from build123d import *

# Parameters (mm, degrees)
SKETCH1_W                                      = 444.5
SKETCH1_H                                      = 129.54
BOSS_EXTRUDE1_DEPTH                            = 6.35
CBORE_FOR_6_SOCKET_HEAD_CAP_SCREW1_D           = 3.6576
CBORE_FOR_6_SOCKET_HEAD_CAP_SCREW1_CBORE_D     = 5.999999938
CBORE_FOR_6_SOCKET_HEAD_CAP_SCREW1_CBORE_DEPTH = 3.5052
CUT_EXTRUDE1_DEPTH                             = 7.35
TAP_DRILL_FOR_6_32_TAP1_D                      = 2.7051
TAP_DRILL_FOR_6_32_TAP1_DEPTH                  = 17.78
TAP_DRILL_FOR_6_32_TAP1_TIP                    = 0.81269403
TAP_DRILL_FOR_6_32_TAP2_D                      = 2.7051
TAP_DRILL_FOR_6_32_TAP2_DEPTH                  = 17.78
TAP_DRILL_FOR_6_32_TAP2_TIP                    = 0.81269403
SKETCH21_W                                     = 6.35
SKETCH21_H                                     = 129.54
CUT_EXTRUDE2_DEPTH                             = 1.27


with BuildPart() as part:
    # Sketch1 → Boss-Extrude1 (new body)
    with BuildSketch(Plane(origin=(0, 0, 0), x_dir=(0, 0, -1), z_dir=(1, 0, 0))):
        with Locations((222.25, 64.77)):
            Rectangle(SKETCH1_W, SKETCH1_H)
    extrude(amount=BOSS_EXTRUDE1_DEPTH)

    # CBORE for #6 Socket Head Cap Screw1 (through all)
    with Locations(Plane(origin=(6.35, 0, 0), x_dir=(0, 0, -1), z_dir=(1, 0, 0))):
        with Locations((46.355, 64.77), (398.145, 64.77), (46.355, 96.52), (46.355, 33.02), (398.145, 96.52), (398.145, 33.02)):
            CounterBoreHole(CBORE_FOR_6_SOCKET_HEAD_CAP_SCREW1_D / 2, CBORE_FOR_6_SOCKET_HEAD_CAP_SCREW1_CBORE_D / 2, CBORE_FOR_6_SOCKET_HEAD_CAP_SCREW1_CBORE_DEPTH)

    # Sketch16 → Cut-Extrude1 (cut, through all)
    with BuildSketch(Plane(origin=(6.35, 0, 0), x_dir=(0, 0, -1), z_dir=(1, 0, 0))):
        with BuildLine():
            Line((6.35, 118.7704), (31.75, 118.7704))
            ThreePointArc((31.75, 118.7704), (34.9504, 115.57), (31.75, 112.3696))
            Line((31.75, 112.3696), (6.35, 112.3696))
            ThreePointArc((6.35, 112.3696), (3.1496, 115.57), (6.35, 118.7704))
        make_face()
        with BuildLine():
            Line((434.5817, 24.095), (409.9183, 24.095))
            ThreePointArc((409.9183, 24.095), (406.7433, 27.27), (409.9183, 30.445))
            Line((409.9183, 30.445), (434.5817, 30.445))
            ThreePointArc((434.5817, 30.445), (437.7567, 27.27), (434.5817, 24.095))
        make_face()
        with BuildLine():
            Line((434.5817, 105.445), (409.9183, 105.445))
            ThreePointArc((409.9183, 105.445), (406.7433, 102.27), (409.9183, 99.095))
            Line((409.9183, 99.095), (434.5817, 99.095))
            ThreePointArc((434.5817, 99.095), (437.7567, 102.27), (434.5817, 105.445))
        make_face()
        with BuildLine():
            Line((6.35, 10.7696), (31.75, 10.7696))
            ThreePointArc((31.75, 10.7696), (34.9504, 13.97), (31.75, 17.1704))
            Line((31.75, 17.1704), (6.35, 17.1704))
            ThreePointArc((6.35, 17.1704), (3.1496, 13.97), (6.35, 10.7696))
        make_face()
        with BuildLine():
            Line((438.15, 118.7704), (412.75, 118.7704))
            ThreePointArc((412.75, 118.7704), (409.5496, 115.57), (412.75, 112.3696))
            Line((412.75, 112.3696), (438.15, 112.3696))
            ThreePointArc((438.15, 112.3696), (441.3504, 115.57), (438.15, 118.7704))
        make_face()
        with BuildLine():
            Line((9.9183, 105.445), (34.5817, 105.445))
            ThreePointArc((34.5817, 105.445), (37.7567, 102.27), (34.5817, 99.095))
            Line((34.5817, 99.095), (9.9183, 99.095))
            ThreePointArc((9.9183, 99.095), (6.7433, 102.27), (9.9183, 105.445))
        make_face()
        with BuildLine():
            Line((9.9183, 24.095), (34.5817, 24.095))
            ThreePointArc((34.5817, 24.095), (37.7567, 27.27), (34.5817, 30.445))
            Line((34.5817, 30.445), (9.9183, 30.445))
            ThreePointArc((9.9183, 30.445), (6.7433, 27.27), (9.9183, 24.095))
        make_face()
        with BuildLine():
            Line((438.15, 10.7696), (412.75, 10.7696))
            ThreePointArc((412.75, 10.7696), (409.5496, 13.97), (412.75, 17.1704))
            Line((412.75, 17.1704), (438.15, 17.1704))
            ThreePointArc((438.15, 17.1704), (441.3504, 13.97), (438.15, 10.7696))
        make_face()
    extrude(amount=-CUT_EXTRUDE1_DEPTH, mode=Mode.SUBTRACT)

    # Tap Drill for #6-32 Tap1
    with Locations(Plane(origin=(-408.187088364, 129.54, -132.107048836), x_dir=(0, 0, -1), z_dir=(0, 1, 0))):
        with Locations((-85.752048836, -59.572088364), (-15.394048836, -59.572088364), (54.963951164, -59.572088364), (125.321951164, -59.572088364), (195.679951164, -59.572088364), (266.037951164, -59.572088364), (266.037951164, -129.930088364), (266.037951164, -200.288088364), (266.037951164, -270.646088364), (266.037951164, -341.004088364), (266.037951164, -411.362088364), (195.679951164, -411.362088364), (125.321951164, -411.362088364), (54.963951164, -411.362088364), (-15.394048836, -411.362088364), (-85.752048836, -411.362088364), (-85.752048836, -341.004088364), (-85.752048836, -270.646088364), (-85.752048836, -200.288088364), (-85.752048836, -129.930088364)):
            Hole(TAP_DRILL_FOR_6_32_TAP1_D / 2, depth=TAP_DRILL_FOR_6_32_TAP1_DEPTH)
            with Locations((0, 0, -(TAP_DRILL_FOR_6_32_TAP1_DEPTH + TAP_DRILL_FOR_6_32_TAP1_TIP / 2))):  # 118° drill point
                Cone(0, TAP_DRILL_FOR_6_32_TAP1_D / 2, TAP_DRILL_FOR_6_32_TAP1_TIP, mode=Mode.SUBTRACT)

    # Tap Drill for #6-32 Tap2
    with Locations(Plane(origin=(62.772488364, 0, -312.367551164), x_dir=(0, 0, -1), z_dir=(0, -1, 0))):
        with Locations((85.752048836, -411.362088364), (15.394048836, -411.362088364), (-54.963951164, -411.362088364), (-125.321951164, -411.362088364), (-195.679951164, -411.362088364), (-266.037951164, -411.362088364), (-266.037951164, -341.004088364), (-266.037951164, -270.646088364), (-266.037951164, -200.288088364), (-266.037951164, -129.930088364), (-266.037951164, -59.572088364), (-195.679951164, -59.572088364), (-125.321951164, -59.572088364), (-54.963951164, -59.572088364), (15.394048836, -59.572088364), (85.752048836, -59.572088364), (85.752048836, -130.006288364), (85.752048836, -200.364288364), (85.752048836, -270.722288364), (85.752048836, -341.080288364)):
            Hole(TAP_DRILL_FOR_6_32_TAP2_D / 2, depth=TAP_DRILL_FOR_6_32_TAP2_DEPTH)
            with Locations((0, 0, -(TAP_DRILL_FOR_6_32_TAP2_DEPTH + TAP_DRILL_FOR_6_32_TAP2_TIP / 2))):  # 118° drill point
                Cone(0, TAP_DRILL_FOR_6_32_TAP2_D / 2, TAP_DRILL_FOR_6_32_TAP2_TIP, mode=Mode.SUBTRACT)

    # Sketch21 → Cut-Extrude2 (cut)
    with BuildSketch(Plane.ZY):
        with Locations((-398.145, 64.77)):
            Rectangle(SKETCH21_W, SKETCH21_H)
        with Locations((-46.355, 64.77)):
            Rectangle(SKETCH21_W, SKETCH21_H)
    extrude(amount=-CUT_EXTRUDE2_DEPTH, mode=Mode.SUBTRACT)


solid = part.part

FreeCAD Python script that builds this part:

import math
import FreeCAD as App
import Part
import Sketcher
from FreeCAD import Vector
Q = App.Units.Quantity


def add_polygon(sketch, points):
    """Adds a closed chain of lines whose ends are joined by coincident constraints."""
    first, n = sketch.GeometryCount, len(points)
    for a, b in zip(points, points[1:] + points[:1]):
        sketch.addGeometry(Part.LineSegment(App.Vector(*a, 0), App.Vector(*b, 0)), False)
    for i in range(n):
        sketch.addConstraint(Sketcher.Constraint("Coincident", first + i, 2, first + (i + 1) % n, 1))

doc = App.newDocument("Part")
body = doc.addObject("PartDesign::Body", "Body")

sketch1 = body.newObject("Sketcher::SketchObject", "Sketch")
sketch1.AttachmentSupport = (doc.getObject("YZ_Plane"), [""])
sketch1.MapMode = "FlatFace"
add_polygon(sketch1, [(130, 0), (0, 0), (0, -444), (130, -444)])
sketch1.addConstraint(Sketcher.Constraint("Horizontal", 0))
sketch1.addConstraint(Sketcher.Constraint("Vertical", 1))
sketch1.addConstraint(Sketcher.Constraint("Horizontal", 2))
sketch1.addConstraint(Sketcher.Constraint("Vertical", 3))
sketch1.addConstraint(Sketcher.Constraint("Coincident", 0, 2, -1, 1))
sketch1.addConstraint(Sketcher.Constraint("DistanceX", 0, 2, 0, 1, Q("5.1 in")))
sketch1.addConstraint(Sketcher.Constraint("DistanceY", 1, 2, 1, 1, Q("17.5 in")))
pad1 = body.newObject("PartDesign::Pad", "Pad")
pad1.Profile = sketch1
pad1.Length = Q("0.25 in")

sketch2 = body.newObject("Sketcher::SketchObject", "Sketch001")
sketch2.AttachmentSupport = (doc.getObject("YZ_Plane"), [""])
sketch2.MapMode = "FlatFace"
sketch2.AttachmentOffset = App.Placement(Vector(0, 0, 0.25 * 25.4), App.Rotation())
sketch2.addGeometry(Part.Circle(Vector(64.8, -46.4, 0), Vector(0, 0, 1), 1.8), False)
sketch2.addGeometry(Part.Circle(Vector(64.8, -398.1, 0), Vector(0, 0, 1), 1.8), False)
sketch2.addGeometry(Part.Circle(Vector(96.5, -46.4, 0), Vector(0, 0, 1), 1.8), False)
sketch2.addGeometry(Part.Circle(Vector(33, -46.4, 0), Vector(0, 0, 1), 1.8), False)
sketch2.addGeometry(Part.Circle(Vector(96.5, -398.1, 0), Vector(0, 0, 1), 1.8), False)
sketch2.addGeometry(Part.Circle(Vector(33, -398.1, 0), Vector(0, 0, 1), 1.8), False)
sketch2.addConstraint(Sketcher.Constraint("Equal", 0, 1))
sketch2.addConstraint(Sketcher.Constraint("Equal", 1, 2))
sketch2.addConstraint(Sketcher.Constraint("Equal", 2, 3))
sketch2.addConstraint(Sketcher.Constraint("Equal", 3, 4))
sketch2.addConstraint(Sketcher.Constraint("Equal", 4, 5))
sketch2.addConstraint(Sketcher.Constraint("Horizontal", 0, 3, 2, 3))
sketch2.addConstraint(Sketcher.Constraint("Horizontal", 2, 3, 3, 3))
sketch2.addConstraint(Sketcher.Constraint("Horizontal", 1, 3, 4, 3))
sketch2.addConstraint(Sketcher.Constraint("Horizontal", 4, 3, 5, 3))
sketch2.addConstraint(Sketcher.Constraint("Vertical", 0, 3, 1, 3))
sketch2.addConstraint(Sketcher.Constraint("Vertical", 2, 3, 4, 3))
sketch2.addConstraint(Sketcher.Constraint("Vertical", 3, 3, 5, 3))
sketch2.addConstraint(Sketcher.Constraint("Diameter", 0, Q("0.144 in")))
sketch2.addConstraint(Sketcher.Constraint("DistanceX", -1, 1, 2, 3, Q("3.8 in")))
sketch2.addConstraint(Sketcher.Constraint("DistanceX", -1, 1, 3, 3, Q("1.3 in")))
sketch2.addConstraint(Sketcher.Constraint("DistanceX", -1, 1, 0, 3, Q("2.55 in")))
sketch2.addConstraint(Sketcher.Constraint("DistanceY", 1, 3, 0, 3, Q("13.85 in")))
sketch2.addConstraint(Sketcher.Constraint("DistanceY", 0, 3, -1, 1, Q("1.825 in")))
doc.recompute()
hole = body.newObject("PartDesign::Hole", "Hole")
hole.Profile = sketch2
hole.ThreadType = "None"
hole.Diameter = Q("0.144 in")
hole.DepthType = "ThroughAll"
hole.HoleCutType = "Counterbore"
hole.HoleCutDiameter = 6
hole.HoleCutDepth = Q("0.138 in")

sketch3 = body.newObject("Sketcher::SketchObject", "Sketch002")
sketch3.AttachmentSupport = (doc.getObject("YZ_Plane"), [""])
sketch3.MapMode = "FlatFace"
sketch3.AttachmentOffset = App.Placement(Vector(0, 0, 0.25 * 25.4), App.Rotation())
sketch3.addGeometry(Part.LineSegment(Vector(118.8, -31.8, 0), Vector(118.8, -6.3, 0)), False)
sketch3.addGeometry(Part.ArcOfCircle(Part.Circle(Vector(115.6, -6.3, 0), Vector(0, 0, 1), 3.2), math.radians(0), math.radians(180)), False)
sketch3.addGeometry(Part.LineSegment(Vector(112.4, -6.3, 0), Vector(112.4, -31.8, 0)), False)
sketch3.addGeometry(Part.ArcOfCircle(Part.Circle(Vector(115.6, -31.8, 0), Vector(0, 0, 1), 3.2), math.radians(180), math.radians(360)), False)
sketch3.addGeometry(Part.LineSegment(Vector(24.1, -409.9, 0), Vector(24.1, -434.6, 0)), False)
sketch3.addGeometry(Part.ArcOfCircle(Part.Circle(Vector(27.3, -434.6, 0), Vector(0, 0, 1), 3.2), math.radians(180), math.radians(360)), False)
sketch3.addGeometry(Part.LineSegment(Vector(30.4, -434.6, 0), Vector(30.4, -409.9, 0)), False)
sketch3.addGeometry(Part.ArcOfCircle(Part.Circle(Vector(27.3, -409.9, 0), Vector(0, 0, 1), 3.2), math.radians(0), math.radians(180)), False)
sketch3.addGeometry(Part.LineSegment(Vector(105.4, -434.6, 0), Vector(105.4, -409.9, 0)), False)
sketch3.addGeometry(Part.ArcOfCircle(Part.Circle(Vector(102.3, -409.9, 0), Vector(0, 0, 1), 3.2), math.radians(0), math.radians(180)), False)
sketch3.addGeometry(Part.LineSegment(Vector(99.1, -409.9, 0), Vector(99.1, -434.6, 0)), False)
sketch3.addGeometry(Part.ArcOfCircle(Part.Circle(Vector(102.3, -434.6, 0), Vector(0, 0, 1), 3.2), math.radians(180), math.radians(360)), False)
sketch3.addGeometry(Part.LineSegment(Vector(10.8, -6.3, 0), Vector(10.8, -31.8, 0)), False)
sketch3.addGeometry(Part.ArcOfCircle(Part.Circle(Vector(14, -31.8, 0), Vector(0, 0, 1), 3.2), math.radians(180), math.radians(360)), False)
sketch3.addGeometry(Part.LineSegment(Vector(17.2, -31.8, 0), Vector(17.2, -6.3, 0)), False)
sketch3.addGeometry(Part.ArcOfCircle(Part.Circle(Vector(14, -6.3, 0), Vector(0, 0, 1), 3.2), math.radians(0), math.radians(180)), False)
sketch3.addGeometry(Part.LineSegment(Vector(118.8, -438.1, 0), Vector(118.8, -412.8, 0)), False)
sketch3.addGeometry(Part.ArcOfCircle(Part.Circle(Vector(115.6, -412.8, 0), Vector(0, 0, 1), 3.2), math.radians(0), math.radians(180)), False)
sketch3.addGeometry(Part.LineSegment(Vector(112.4, -412.8, 0), Vector(112.4, -438.1, 0)), False)
sketch3.addGeometry(Part.ArcOfCircle(Part.Circle(Vector(115.6, -438.1, 0), Vector(0, 0, 1), 3.2), math.radians(180), math.radians(360)), False)
sketch3.addGeometry(Part.LineSegment(Vector(105.4, -34.6, 0), Vector(105.4, -9.9, 0)), False)
sketch3.addGeometry(Part.ArcOfCircle(Part.Circle(Vector(102.3, -9.9, 0), Vector(0, 0, 1), 3.2), math.radians(0), math.radians(180)), False)
sketch3.addGeometry(Part.LineSegment(Vector(99.1, -9.9, 0), Vector(99.1, -34.6, 0)), False)
sketch3.addGeometry(Part.ArcOfCircle(Part.Circle(Vector(102.3, -34.6, 0), Vector(0, 0, 1), 3.2), math.radians(180), math.radians(360)), False)
sketch3.addGeometry(Part.LineSegment(Vector(24.1, -9.9, 0), Vector(24.1, -34.6, 0)), False)
sketch3.addGeometry(Part.ArcOfCircle(Part.Circle(Vector(27.3, -34.6, 0), Vector(0, 0, 1), 3.2), math.radians(180), math.radians(360)), False)
sketch3.addGeometry(Part.LineSegment(Vector(30.4, -34.6, 0), Vector(30.4, -9.9, 0)), False)
sketch3.addGeometry(Part.ArcOfCircle(Part.Circle(Vector(27.3, -9.9, 0), Vector(0, 0, 1), 3.2), math.radians(0), math.radians(180)), False)
sketch3.addGeometry(Part.LineSegment(Vector(10.8, -412.8, 0), Vector(10.8, -438.1, 0)), False)
sketch3.addGeometry(Part.ArcOfCircle(Part.Circle(Vector(14, -438.1, 0), Vector(0, 0, 1), 3.2), math.radians(180), math.radians(360)), False)
sketch3.addGeometry(Part.LineSegment(Vector(17.2, -438.1, 0), Vector(17.2, -412.8, 0)), False)
sketch3.addGeometry(Part.ArcOfCircle(Part.Circle(Vector(14, -412.8, 0), Vector(0, 0, 1), 3.2), math.radians(0), math.radians(180)), False)
sketch3.addConstraint(Sketcher.Constraint("Tangent", 0, 2, 1, 1))
sketch3.addConstraint(Sketcher.Constraint("Tangent", 1, 2, 2, 1))
sketch3.addConstraint(Sketcher.Constraint("Tangent", 2, 2, 3, 1))
sketch3.addConstraint(Sketcher.Constraint("Tangent", 3, 2, 0, 1))
sketch3.addConstraint(Sketcher.Constraint("Tangent", 4, 2, 5, 1))
sketch3.addConstraint(Sketcher.Constraint("Tangent", 5, 2, 6, 1))
sketch3.addConstraint(Sketcher.Constraint("Tangent", 6, 2, 7, 1))
sketch3.addConstraint(Sketcher.Constraint("Tangent", 7, 2, 4, 1))
sketch3.addConstraint(Sketcher.Constraint("Tangent", 8, 2, 9, 1))
sketch3.addConstraint(Sketcher.Constraint("Tangent", 9, 2, 10, 1))
sketch3.addConstraint(Sketcher.Constraint("Tangent", 10, 2, 11, 1))
sketch3.addConstraint(Sketcher.Constraint("Tangent", 11, 2, 8, 1))
sketch3.addConstraint(Sketcher.Constraint("Tangent", 12, 2, 13, 1))
sketch3.addConstraint(Sketcher.Constraint("Tangent", 13, 2, 14, 1))
sketch3.addConstraint(Sketcher.Constraint("Tangent", 14, 2, 15, 1))
sketch3.addConstraint(Sketcher.Constraint("Tangent", 15, 2, 12, 1))
sketch3.addConstraint(Sketcher.Constraint("Tangent", 16, 2, 17, 1))
sketch3.addConstraint(Sketcher.Constraint("Tangent", 17, 2, 18, 1))
sketch3.addConstraint(Sketcher.Constraint("Tangent", 18, 2, 19, 1))
sketch3.addConstraint(Sketcher.Constraint("Tangent", 19, 2, 16, 1))
sketch3.addConstraint(Sketcher.Constraint("Tangent", 20, 2, 21, 1))
sketch3.addConstraint(Sketcher.Constraint("Tangent", 21, 2, 22, 1))
sketch3.addConstraint(Sketcher.Constraint("Tangent", 22, 2, 23, 1))
sketch3.addConstraint(Sketcher.Constraint("Tangent", 23, 2, 20, 1))
sketch3.addConstraint(Sketcher.Constraint("Tangent", 24, 2, 25, 1))
sketch3.addConstraint(Sketcher.Constraint("Tangent", 25, 2, 26, 1))
sketch3.addConstraint(Sketcher.Constraint("Tangent", 26, 2, 27, 1))
sketch3.addConstraint(Sketcher.Constraint("Tangent", 27, 2, 24, 1))
sketch3.addConstraint(Sketcher.Constraint("Tangent", 28, 2, 29, 1))
sketch3.addConstraint(Sketcher.Constraint("Tangent", 29, 2, 30, 1))
sketch3.addConstraint(Sketcher.Constraint("Tangent", 30, 2, 31, 1))
sketch3.addConstraint(Sketcher.Constraint("Tangent", 31, 2, 28, 1))
sketch3.addConstraint(Sketcher.Constraint("Vertical", 0))
sketch3.addConstraint(Sketcher.Constraint("Vertical", 2))
sketch3.addConstraint(Sketcher.Constraint("Vertical", 4))
sketch3.addConstraint(Sketcher.Constraint("Vertical", 6))
sketch3.addConstraint(Sketcher.Constraint("Vertical", 8))
sketch3.addConstraint(Sketcher.Constraint("Vertical", 10))
sketch3.addConstraint(Sketcher.Constraint("Vertical", 12))
sketch3.addConstraint(Sketcher.Constraint("Vertical", 14))
sketch3.addConstraint(Sketcher.Constraint("Vertical", 16))
sketch3.addConstraint(Sketcher.Constraint("Vertical", 18))
sketch3.addConstraint(Sketcher.Constraint("Vertical", 20))
sketch3.addConstraint(Sketcher.Constraint("Vertical", 22))
sketch3.addConstraint(Sketcher.Constraint("Vertical", 24))
sketch3.addConstraint(Sketcher.Constraint("Vertical", 26))
sketch3.addConstraint(Sketcher.Constraint("Vertical", 28))
sketch3.addConstraint(Sketcher.Constraint("Vertical", 30))
sketch3.addConstraint(Sketcher.Constraint("Equal", 7, 9))
sketch3.addConstraint(Sketcher.Constraint("Equal", 3, 13))
sketch3.addConstraint(Sketcher.Constraint("Equal", 15, 17))
sketch3.addConstraint(Sketcher.Constraint("Equal", 11, 21))
sketch3.addConstraint(Sketcher.Constraint("Equal", 23, 25))
sketch3.addConstraint(Sketcher.Constraint("Equal", 19, 29))
sketch3.addConstraint(Sketcher.Constraint("Horizontal", 7, 3, 9, 3))
sketch3.addConstraint(Sketcher.Constraint("Horizontal", 5, 3, 11, 3))
sketch3.addConstraint(Sketcher.Constraint("Horizontal", 3, 3, 13, 3))
sketch3.addConstraint(Sketcher.Constraint("Horizontal", 1, 3, 15, 3))
sketch3.addConstraint(Sketcher.Constraint("Horizontal", 23, 3, 25, 3))
sketch3.addConstraint(Sketcher.Constraint("Horizontal", 21, 3, 27, 3))
sketch3.addConstraint(Sketcher.Constraint("Horizontal", 19, 3, 29, 3))
sketch3.addConstraint(Sketcher.Constraint("Horizontal", 17, 3, 31, 3))
sketch3.addConstraint(Sketcher.Constraint("Vertical", 3, 3, 17, 3))
sketch3.addConstraint(Sketcher.Constraint("Vertical", 11, 3, 21, 3))
sketch3.addConstraint(Sketcher.Constraint("Vertical", 7, 3, 25, 3))
sketch3.addConstraint(Sketcher.Constraint("Vertical", 15, 3, 29, 3))
sketch3.addConstraint(Sketcher.Constraint("Equal", 14, 16))
sketch3.addConstraint(Sketcher.Constraint("Equal", 10, 20))
sketch3.addConstraint(Sketcher.Constraint("DistanceY", 0, 1, 0, 2, Q("1 in")))
sketch3.addConstraint(Sketcher.Constraint("Radius", 1, Q("0.126 in")))
sketch3.addConstraint(Sketcher.Constraint("Radius", 5, Q("0.125 in")))
sketch3.addConstraint(Sketcher.Constraint("DistanceX", 13, 3, 3, 3, Q("4 in")))
sketch3.addConstraint(Sketcher.Constraint("DistanceY", 17, 3, 3, 3, Q("15 in")))
sketch3.addConstraint(Sketcher.Constraint("DistanceY", 4, 2, 4, 1, Q("0.971 in")))
sketch3.addConstraint(Sketcher.Constraint("DistanceX", -1, 1, 1, 3, Q("4.55 in")))
sketch3.addConstraint(Sketcher.Constraint("DistanceY", 1, 3, -1, 1, Q("0.25 in")))
sketch3.addConstraint(Sketcher.Constraint("DistanceX", -1, 1, 5, 3, Q("27.27 mm")))
sketch3.addConstraint(Sketcher.Constraint("DistanceY", 5, 3, -1, 1, Q("434.5817 mm")))
sketch3.addConstraint(Sketcher.Constraint("DistanceX", -1, 1, 9, 3, Q("102.27 mm")))
sketch3.addConstraint(Sketcher.Constraint("DistanceY", 21, 3, -1, 1, Q("9.9183 mm")))
pocket1 = body.newObject("PartDesign::Pocket", "Pocket")
pocket1.Profile = sketch3
pocket1.Type = "ThroughAll"

sketch4 = body.newObject("Sketcher::SketchObject", "Sketch003")
sketch4.AttachmentSupport = (doc.getObject("XZ_Plane"), [""])
sketch4.MapMode = "FlatFace"
sketch4.AttachmentOffset = App.Placement(Vector(0, 0, -5.1 * 25.4), App.Rotation())
sketch4.addGeometry(Part.Circle(Vector(-348.6, -46.4, 0), Vector(0, 0, 1), 1.4), False)
sketch4.addGeometry(Part.Circle(Vector(-348.6, -116.7, 0), Vector(0, 0, 1), 1.4), False)
sketch4.addGeometry(Part.Circle(Vector(-348.6, -187.1, 0), Vector(0, 0, 1), 1.4), False)
sketch4.addGeometry(Part.Circle(Vector(-348.6, -257.4, 0), Vector(0, 0, 1), 1.4), False)
sketch4.addGeometry(Part.Circle(Vector(-348.6, -327.8, 0), Vector(0, 0, 1), 1.4), False)
sketch4.addGeometry(Part.Circle(Vector(-348.6, -398.1, 0), Vector(0, 0, 1), 1.4), False)
sketch4.addGeometry(Part.Circle(Vector(-278.3, -398.1, 0), Vector(0, 0, 1), 1.4), False)
sketch4.addGeometry(Part.Circle(Vector(-207.9, -398.1, 0), Vector(0, 0, 1), 1.4), False)
sketch4.addGeometry(Part.Circle(Vector(-137.5, -398.1, 0), Vector(0, 0, 1), 1.4), False)
sketch4.addGeometry(Part.Circle(Vector(-67.2, -398.1, 0), Vector(0, 0, 1), 1.4), False)
sketch4.addGeometry(Part.Circle(Vector(3.2, -398.1, 0), Vector(0, 0, 1), 1.4), False)
sketch4.addGeometry(Part.Circle(Vector(3.2, -327.8, 0), Vector(0, 0, 1), 1.4), False)
sketch4.addGeometry(Part.Circle(Vector(3.2, -257.4, 0), Vector(0, 0, 1), 1.4), False)
sketch4.addGeometry(Part.Circle(Vector(3.2, -187.1, 0), Vector(0, 0, 1), 1.4), False)
sketch4.addGeometry(Part.Circle(Vector(3.2, -116.7, 0), Vector(0, 0, 1), 1.4), False)
sketch4.addGeometry(Part.Circle(Vector(3.2, -46.4, 0), Vector(0, 0, 1), 1.4), False)
sketch4.addGeometry(Part.Circle(Vector(-67.2, -46.4, 0), Vector(0, 0, 1), 1.4), False)
sketch4.addGeometry(Part.Circle(Vector(-137.5, -46.4, 0), Vector(0, 0, 1), 1.4), False)
sketch4.addGeometry(Part.Circle(Vector(-207.9, -46.4, 0), Vector(0, 0, 1), 1.4), False)
sketch4.addGeometry(Part.Circle(Vector(-278.3, -46.4, 0), Vector(0, 0, 1), 1.4), False)
sketch4.addConstraint(Sketcher.Constraint("Equal", 0, 1))
sketch4.addConstraint(Sketcher.Constraint("Equal", 1, 2))
sketch4.addConstraint(Sketcher.Constraint("Equal", 2, 3))
sketch4.addConstraint(Sketcher.Constraint("Equal", 3, 4))
sketch4.addConstraint(Sketcher.Constraint("Equal", 4, 5))
sketch4.addConstraint(Sketcher.Constraint("Equal", 5, 6))
sketch4.addConstraint(Sketcher.Constraint("Equal", 6, 7))
sketch4.addConstraint(Sketcher.Constraint("Equal", 7, 8))
sketch4.addConstraint(Sketcher.Constraint("Equal", 8, 9))
sketch4.addConstraint(Sketcher.Constraint("Equal", 9, 10))
sketch4.addConstraint(Sketcher.Constraint("Equal", 10, 11))
sketch4.addConstraint(Sketcher.Constraint("Equal", 11, 12))
sketch4.addConstraint(Sketcher.Constraint("Equal", 12, 13))
sketch4.addConstraint(Sketcher.Constraint("Equal", 13, 14))
sketch4.addConstraint(Sketcher.Constraint("Equal", 14, 15))
sketch4.addConstraint(Sketcher.Constraint("Equal", 15, 16))
sketch4.addConstraint(Sketcher.Constraint("Equal", 16, 17))
sketch4.addConstraint(Sketcher.Constraint("Equal", 17, 18))
sketch4.addConstraint(Sketcher.Constraint("Equal", 18, 19))
sketch4.addConstraint(Sketcher.Constraint("Horizontal", 5, 3, 6, 3))
sketch4.addConstraint(Sketcher.Constraint("Horizontal", 6, 3, 7, 3))
sketch4.addConstraint(Sketcher.Constraint("Horizontal", 7, 3, 8, 3))
sketch4.addConstraint(Sketcher.Constraint("Horizontal", 8, 3, 9, 3))
sketch4.addConstraint(Sketcher.Constraint("Horizontal", 9, 3, 10, 3))
sketch4.addConstraint(Sketcher.Constraint("Horizontal", 4, 3, 11, 3))
sketch4.addConstraint(Sketcher.Constraint("Horizontal", 3, 3, 12, 3))
sketch4.addConstraint(Sketcher.Constraint("Horizontal", 2, 3, 13, 3))
sketch4.addConstraint(Sketcher.Constraint("Horizontal", 1, 3, 14, 3))
sketch4.addConstraint(Sketcher.Constraint("Horizontal", 0, 3, 15, 3))
sketch4.addConstraint(Sketcher.Constraint("Horizontal", 15, 3, 16, 3))
sketch4.addConstraint(Sketcher.Constraint("Horizontal", 16, 3, 17, 3))
sketch4.addConstraint(Sketcher.Constraint("Horizontal", 17, 3, 18, 3))
sketch4.addConstraint(Sketcher.Constraint("Horizontal", 18, 3, 19, 3))
sketch4.addConstraint(Sketcher.Constraint("Vertical", 0, 3, 1, 3))
sketch4.addConstraint(Sketcher.Constraint("Vertical", 1, 3, 2, 3))
sketch4.addConstraint(Sketcher.Constraint("Vertical", 2, 3, 3, 3))
sketch4.addConstraint(Sketcher.Constraint("Vertical", 3, 3, 4, 3))
sketch4.addConstraint(Sketcher.Constraint("Vertical", 4, 3, 5, 3))
sketch4.addConstraint(Sketcher.Constraint("Vertical", 10, 3, 11, 3))
sketch4.addConstraint(Sketcher.Constraint("Vertical", 11, 3, 12, 3))
sketch4.addConstraint(Sketcher.Constraint("Vertical", 12, 3, 13, 3))
sketch4.addConstraint(Sketcher.Constraint("Vertical", 13, 3, 14, 3))
sketch4.addConstraint(Sketcher.Constraint("Vertical", 14, 3, 15, 3))
sketch4.addConstraint(Sketcher.Constraint("Vertical", 9, 3, 16, 3))
sketch4.addConstraint(Sketcher.Constraint("Vertical", 8, 3, 17, 3))
sketch4.addConstraint(Sketcher.Constraint("Vertical", 7, 3, 18, 3))
sketch4.addConstraint(Sketcher.Constraint("Vertical", 6, 3, 19, 3))
sketch4.addConstraint(Sketcher.Constraint("Diameter", 0, Q("0.1065 in")))
sketch4.addConstraint(Sketcher.Constraint("DistanceY", 1, 3, 0, 3, Q("2.77 in")))
sketch4.addConstraint(Sketcher.Constraint("DistanceY", 2, 3, 1, 3, Q("2.77 in")))
sketch4.addConstraint(Sketcher.Constraint("DistanceY", 3, 3, 2, 3, Q("2.77 in")))
sketch4.addConstraint(Sketcher.Constraint("DistanceY", 4, 3, 3, 3, Q("2.77 in")))
sketch4.addConstraint(Sketcher.Constraint("DistanceY", 5, 3, 4, 3, Q("2.77 in")))
sketch4.addConstraint(Sketcher.Constraint("DistanceX", 5, 3, 6, 3, Q("2.77 in")))
sketch4.addConstraint(Sketcher.Constraint("DistanceX", 6, 3, 7, 3, Q("2.77 in")))
sketch4.addConstraint(Sketcher.Constraint("DistanceX", 7, 3, 8, 3, Q("2.77 in")))
sketch4.addConstraint(Sketcher.Constraint("DistanceX", 8, 3, 9, 3, Q("2.77 in")))
sketch4.addConstraint(Sketcher.Constraint("DistanceX", 9, 3, 10, 3, Q("2.77 in")))
sketch4.addConstraint(Sketcher.Constraint("DistanceX", 0, 3, -1, 1, Q("13.725 in")))
sketch4.addConstraint(Sketcher.Constraint("DistanceY", 0, 3, -1, 1, Q("1.825 in")))
doc.recompute()
hole2 = body.newObject("PartDesign::Hole", "Hole001")
hole2.Profile = sketch4
hole2.ThreadType = "None"
hole2.Diameter = Q("0.1065 in")
hole2.DepthType = "Dimension"
hole2.Depth = Q("0.7 in")
hole2.DrillPoint = "Angled"
hole2.DrillPointAngle = 118
hole2.Reversed = True

sketch5 = body.newObject("Sketcher::SketchObject", "Sketch004")
sketch5.AttachmentSupport = (doc.getObject("XZ_Plane"), [""])
sketch5.MapMode = "FlatFace"
sketch5.addGeometry(Part.Circle(Vector(-348.6, -398.1, 0), Vector(0, 0, 1), 1.4), False)
sketch5.addGeometry(Part.Circle(Vector(-348.6, -327.8, 0), Vector(0, 0, 1), 1.4), False)
sketch5.addGeometry(Part.Circle(Vector(-348.6, -257.4, 0), Vector(0, 0, 1), 1.4), False)
sketch5.addGeometry(Part.Circle(Vector(-348.6, -187, 0), Vector(0, 0, 1), 1.4), False)
sketch5.addGeometry(Part.Circle(Vector(-348.6, -116.7, 0), Vector(0, 0, 1), 1.4), False)
sketch5.addGeometry(Part.Circle(Vector(-348.6, -46.3, 0), Vector(0, 0, 1), 1.4), False)
sketch5.addGeometry(Part.Circle(Vector(-278.2, -46.3, 0), Vector(0, 0, 1), 1.4), False)
sketch5.addGeometry(Part.Circle(Vector(-207.9, -46.3, 0), Vector(0, 0, 1), 1.4), False)
sketch5.addGeometry(Part.Circle(Vector(-137.5, -46.3, 0), Vector(0, 0, 1), 1.4), False)
sketch5.addGeometry(Part.Circle(Vector(-67.2, -46.3, 0), Vector(0, 0, 1), 1.4), False)
sketch5.addGeometry(Part.Circle(Vector(3.2, -46.3, 0), Vector(0, 0, 1), 1.4), False)
sketch5.addGeometry(Part.Circle(Vector(3.2, -116.7, 0), Vector(0, 0, 1), 1.4), False)
sketch5.addGeometry(Part.Circle(Vector(3.2, -187, 0), Vector(0, 0, 1), 1.4), False)
sketch5.addGeometry(Part.Circle(Vector(3.2, -257.4, 0), Vector(0, 0, 1), 1.4), False)
sketch5.addGeometry(Part.Circle(Vector(3.2, -327.8, 0), Vector(0, 0, 1), 1.4), False)
sketch5.addGeometry(Part.Circle(Vector(3.2, -398.1, 0), Vector(0, 0, 1), 1.4), False)
sketch5.addGeometry(Part.Circle(Vector(-67.2, -398.1, 0), Vector(0, 0, 1), 1.4), False)
sketch5.addGeometry(Part.Circle(Vector(-137.6, -398.1, 0), Vector(0, 0, 1), 1.4), False)
sketch5.addGeometry(Part.Circle(Vector(-207.9, -398.1, 0), Vector(0, 0, 1), 1.4), False)
sketch5.addGeometry(Part.Circle(Vector(-278.3, -398.1, 0), Vector(0, 0, 1), 1.4), False)
sketch5.addConstraint(Sketcher.Constraint("Equal", 0, 1))
sketch5.addConstraint(Sketcher.Constraint("Equal", 1, 2))
sketch5.addConstraint(Sketcher.Constraint("Equal", 2, 3))
sketch5.addConstraint(Sketcher.Constraint("Equal", 3, 4))
sketch5.addConstraint(Sketcher.Constraint("Equal", 4, 5))
sketch5.addConstraint(Sketcher.Constraint("Equal", 5, 6))
sketch5.addConstraint(Sketcher.Constraint("Equal", 6, 7))
sketch5.addConstraint(Sketcher.Constraint("Equal", 7, 8))
sketch5.addConstraint(Sketcher.Constraint("Equal", 8, 9))
sketch5.addConstraint(Sketcher.Constraint("Equal", 9, 10))
sketch5.addConstraint(Sketcher.Constraint("Equal", 10, 11))
sketch5.addConstraint(Sketcher.Constraint("Equal", 11, 12))
sketch5.addConstraint(Sketcher.Constraint("Equal", 12, 13))
sketch5.addConstraint(Sketcher.Constraint("Equal", 13, 14))
sketch5.addConstraint(Sketcher.Constraint("Equal", 14, 15))
sketch5.addConstraint(Sketcher.Constraint("Equal", 15, 16))
sketch5.addConstraint(Sketcher.Constraint("Equal", 16, 17))
sketch5.addConstraint(Sketcher.Constraint("Equal", 17, 18))
sketch5.addConstraint(Sketcher.Constraint("Equal", 18, 19))
sketch5.addConstraint(Sketcher.Constraint("Horizontal", 5, 3, 6, 3))
sketch5.addConstraint(Sketcher.Constraint("Horizontal", 6, 3, 7, 3))
sketch5.addConstraint(Sketcher.Constraint("Horizontal", 7, 3, 8, 3))
sketch5.addConstraint(Sketcher.Constraint("Horizontal", 8, 3, 9, 3))
sketch5.addConstraint(Sketcher.Constraint("Horizontal", 9, 3, 10, 3))
sketch5.addConstraint(Sketcher.Constraint("Horizontal", 4, 3, 11, 3))
sketch5.addConstraint(Sketcher.Constraint("Horizontal", 3, 3, 12, 3))
sketch5.addConstraint(Sketcher.Constraint("Horizontal", 2, 3, 13, 3))
sketch5.addConstraint(Sketcher.Constraint("Horizontal", 1, 3, 14, 3))
sketch5.addConstraint(Sketcher.Constraint("Horizontal", 0, 3, 15, 3))
sketch5.addConstraint(Sketcher.Constraint("Horizontal", 15, 3, 16, 3))
sketch5.addConstraint(Sketcher.Constraint("Horizontal", 16, 3, 17, 3))
sketch5.addConstraint(Sketcher.Constraint("Horizontal", 17, 3, 18, 3))
sketch5.addConstraint(Sketcher.Constraint("Horizontal", 18, 3, 19, 3))
sketch5.addConstraint(Sketcher.Constraint("Vertical", 0, 3, 1, 3))
sketch5.addConstraint(Sketcher.Constraint("Vertical", 1, 3, 2, 3))
sketch5.addConstraint(Sketcher.Constraint("Vertical", 2, 3, 3, 3))
sketch5.addConstraint(Sketcher.Constraint("Vertical", 3, 3, 4, 3))
sketch5.addConstraint(Sketcher.Constraint("Vertical", 4, 3, 5, 3))
sketch5.addConstraint(Sketcher.Constraint("Vertical", 10, 3, 11, 3))
sketch5.addConstraint(Sketcher.Constraint("Vertical", 11, 3, 12, 3))
sketch5.addConstraint(Sketcher.Constraint("Vertical", 12, 3, 13, 3))
sketch5.addConstraint(Sketcher.Constraint("Vertical", 13, 3, 14, 3))
sketch5.addConstraint(Sketcher.Constraint("Vertical", 14, 3, 15, 3))
sketch5.addConstraint(Sketcher.Constraint("Diameter", 0, Q("0.1065 in")))
sketch5.addConstraint(Sketcher.Constraint("DistanceY", 0, 3, 1, 3, Q("2.77 in")))
sketch5.addConstraint(Sketcher.Constraint("DistanceY", 1, 3, 2, 3, Q("2.77 in")))
sketch5.addConstraint(Sketcher.Constraint("DistanceY", 2, 3, 3, 3, Q("2.77 in")))
sketch5.addConstraint(Sketcher.Constraint("DistanceY", 3, 3, 4, 3, Q("2.77 in")))
sketch5.addConstraint(Sketcher.Constraint("DistanceY", 4, 3, 5, 3, Q("2.77 in")))
sketch5.addConstraint(Sketcher.Constraint("DistanceX", 5, 3, 6, 3, Q("2.77 in")))
sketch5.addConstraint(Sketcher.Constraint("DistanceX", 6, 3, 7, 3, Q("2.77 in")))
sketch5.addConstraint(Sketcher.Constraint("DistanceX", 7, 3, 8, 3, Q("2.77 in")))
sketch5.addConstraint(Sketcher.Constraint("DistanceX", 8, 3, 9, 3, Q("2.77 in")))
sketch5.addConstraint(Sketcher.Constraint("DistanceX", 9, 3, 10, 3, Q("2.77 in")))
sketch5.addConstraint(Sketcher.Constraint("DistanceX", 17, 3, 16, 3, Q("2.77 in")))
sketch5.addConstraint(Sketcher.Constraint("DistanceX", 18, 3, 17, 3, Q("2.77 in")))
sketch5.addConstraint(Sketcher.Constraint("DistanceX", 19, 3, 18, 3, Q("2.77 in")))
sketch5.addConstraint(Sketcher.Constraint("DistanceX", 0, 3, -1, 1, Q("13.724 in")))
sketch5.addConstraint(Sketcher.Constraint("DistanceY", 0, 3, -1, 1, Q("15.674 in")))
sketch5.addConstraint(Sketcher.Constraint("DistanceX", 16, 3, -1, 1, Q("2.647 in")))
doc.recompute()
hole3 = body.newObject("PartDesign::Hole", "Hole002")
hole3.Profile = sketch5
hole3.ThreadType = "None"
hole3.Diameter = Q("0.1065 in")
hole3.DepthType = "Dimension"
hole3.Depth = Q("0.7 in")
hole3.DrillPoint = "Angled"
hole3.DrillPointAngle = 118

sketch6 = body.newObject("Sketcher::SketchObject", "Sketch005")
sketch6.AttachmentSupport = (doc.getObject("YZ_Plane"), [""])
sketch6.MapMode = "FlatFace"
add_polygon(sketch6, [(130, -401), (0, -401), (0, -395), (130, -395)])
add_polygon(sketch6, [(130, -50), (0, -50), (0, -43), (130, -43)])
sketch6.addConstraint(Sketcher.Constraint("Horizontal", 0))
sketch6.addConstraint(Sketcher.Constraint("Vertical", 1))
sketch6.addConstraint(Sketcher.Constraint("Horizontal", 2))
sketch6.addConstraint(Sketcher.Constraint("Vertical", 3))
sketch6.addConstraint(Sketcher.Constraint("Horizontal", 4))
sketch6.addConstraint(Sketcher.Constraint("Vertical", 5))
sketch6.addConstraint(Sketcher.Constraint("Horizontal", 6))
sketch6.addConstraint(Sketcher.Constraint("Vertical", 7))
sketch6.addConstraint(Sketcher.Constraint("PointOnObject", 0, 2, -2))
sketch6.addConstraint(Sketcher.Constraint("PointOnObject", 4, 2, -2))
sketch6.addConstraint(Sketcher.Constraint("Vertical", 3, 2, 6, 2))
sketch6.addConstraint(Sketcher.Constraint("Equal", 3, 5))
sketch6.addConstraint(Sketcher.Constraint("DistanceX", 0, 2, 0, 1, Q("5.1 in")))
sketch6.addConstraint(Sketcher.Constraint("DistanceY", 1, 1, 1, 2, Q("0.25 in")))
sketch6.addConstraint(Sketcher.Constraint("DistanceY", 0, 2, -1, 1, Q("15.8 in")))
sketch6.addConstraint(Sketcher.Constraint("DistanceY", 5, 2, -1, 1, Q("1.7 in")))
pocket2 = body.newObject("PartDesign::Pocket", "Pocket001")
pocket2.Profile = sketch6
pocket2.Length = Q("0.05 in")
pocket2.Reversed = True

doc.recompute()
